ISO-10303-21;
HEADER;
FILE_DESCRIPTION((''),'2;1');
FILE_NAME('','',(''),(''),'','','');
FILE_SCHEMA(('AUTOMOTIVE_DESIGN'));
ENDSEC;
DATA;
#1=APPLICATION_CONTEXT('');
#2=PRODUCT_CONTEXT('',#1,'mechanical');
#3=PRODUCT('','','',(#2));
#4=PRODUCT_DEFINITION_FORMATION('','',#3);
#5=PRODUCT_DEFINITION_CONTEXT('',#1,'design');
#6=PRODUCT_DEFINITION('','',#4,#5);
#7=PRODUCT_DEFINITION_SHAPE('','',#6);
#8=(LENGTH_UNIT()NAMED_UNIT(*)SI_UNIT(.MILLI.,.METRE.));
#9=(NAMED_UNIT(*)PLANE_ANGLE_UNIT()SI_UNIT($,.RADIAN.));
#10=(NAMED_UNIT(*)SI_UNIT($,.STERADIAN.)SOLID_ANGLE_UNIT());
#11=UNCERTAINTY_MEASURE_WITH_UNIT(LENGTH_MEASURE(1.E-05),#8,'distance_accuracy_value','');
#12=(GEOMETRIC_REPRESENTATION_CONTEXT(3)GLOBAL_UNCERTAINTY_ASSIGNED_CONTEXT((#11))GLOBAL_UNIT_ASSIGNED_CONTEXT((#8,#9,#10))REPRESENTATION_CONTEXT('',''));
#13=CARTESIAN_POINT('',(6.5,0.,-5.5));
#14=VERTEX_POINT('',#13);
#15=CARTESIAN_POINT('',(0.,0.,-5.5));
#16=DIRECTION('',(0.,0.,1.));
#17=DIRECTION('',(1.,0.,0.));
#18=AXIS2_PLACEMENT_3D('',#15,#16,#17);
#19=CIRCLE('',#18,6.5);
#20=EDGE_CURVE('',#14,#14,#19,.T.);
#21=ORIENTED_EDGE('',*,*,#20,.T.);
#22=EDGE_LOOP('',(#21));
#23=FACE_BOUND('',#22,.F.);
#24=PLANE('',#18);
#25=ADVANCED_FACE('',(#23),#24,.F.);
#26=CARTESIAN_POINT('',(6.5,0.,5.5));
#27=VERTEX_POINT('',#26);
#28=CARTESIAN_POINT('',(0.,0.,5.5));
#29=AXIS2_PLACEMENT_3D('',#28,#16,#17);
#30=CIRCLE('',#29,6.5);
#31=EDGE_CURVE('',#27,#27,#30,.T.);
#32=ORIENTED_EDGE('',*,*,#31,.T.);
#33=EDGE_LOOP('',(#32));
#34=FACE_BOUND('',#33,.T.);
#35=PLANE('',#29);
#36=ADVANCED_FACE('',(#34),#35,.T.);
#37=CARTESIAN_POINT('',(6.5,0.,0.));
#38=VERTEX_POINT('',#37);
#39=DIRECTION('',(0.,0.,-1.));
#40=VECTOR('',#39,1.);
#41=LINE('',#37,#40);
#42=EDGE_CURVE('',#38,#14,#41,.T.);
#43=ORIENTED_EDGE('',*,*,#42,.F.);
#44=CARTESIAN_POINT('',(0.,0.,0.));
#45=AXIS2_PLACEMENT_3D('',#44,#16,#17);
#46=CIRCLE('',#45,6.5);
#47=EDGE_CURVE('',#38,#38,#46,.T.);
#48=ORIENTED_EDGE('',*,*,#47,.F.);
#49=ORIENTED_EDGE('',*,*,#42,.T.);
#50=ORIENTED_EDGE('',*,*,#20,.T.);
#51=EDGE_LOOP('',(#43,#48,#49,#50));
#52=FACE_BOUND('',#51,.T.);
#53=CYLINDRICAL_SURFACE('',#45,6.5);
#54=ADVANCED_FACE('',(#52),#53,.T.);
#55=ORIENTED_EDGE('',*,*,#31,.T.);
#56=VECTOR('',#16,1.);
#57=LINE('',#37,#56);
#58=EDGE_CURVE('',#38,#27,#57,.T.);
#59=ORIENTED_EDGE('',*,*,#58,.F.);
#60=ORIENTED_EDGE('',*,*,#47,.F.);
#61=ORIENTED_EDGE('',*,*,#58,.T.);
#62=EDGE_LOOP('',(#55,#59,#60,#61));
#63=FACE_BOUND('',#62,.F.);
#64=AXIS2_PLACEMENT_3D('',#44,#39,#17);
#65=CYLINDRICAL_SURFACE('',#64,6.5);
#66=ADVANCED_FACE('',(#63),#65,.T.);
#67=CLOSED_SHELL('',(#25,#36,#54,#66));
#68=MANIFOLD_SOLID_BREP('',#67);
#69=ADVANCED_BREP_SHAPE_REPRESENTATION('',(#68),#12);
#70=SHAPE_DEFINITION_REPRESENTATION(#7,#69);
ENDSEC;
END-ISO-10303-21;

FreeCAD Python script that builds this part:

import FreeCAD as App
import Part
import Sketcher

doc = App.newDocument("Part")
body = doc.addObject("PartDesign::Body", "Body")

# Sketch on XY plane
sketch1 = body.newObject("Sketcher::SketchObject", "Sketch")
sketch1.AttachmentSupport = (doc.getObject("XY_Plane"), [""])
sketch1.MapMode = "FlatFace"
sketch1.addGeometry(Part.Circle(App.Vector(0, 0, 0), App.Vector(0, 0, 1), 6), False)
sketch1.addConstraint([
    Sketcher.Constraint("Coincident", 0, 3, -1, 1),
    Sketcher.Constraint("Diameter", 0, 13.0),
])
pad1 = body.newObject("PartDesign::Pad", "Pad")
pad1.Profile = sketch1
pad1.Length = 11
pad1.Midplane = True

doc.recompute()
